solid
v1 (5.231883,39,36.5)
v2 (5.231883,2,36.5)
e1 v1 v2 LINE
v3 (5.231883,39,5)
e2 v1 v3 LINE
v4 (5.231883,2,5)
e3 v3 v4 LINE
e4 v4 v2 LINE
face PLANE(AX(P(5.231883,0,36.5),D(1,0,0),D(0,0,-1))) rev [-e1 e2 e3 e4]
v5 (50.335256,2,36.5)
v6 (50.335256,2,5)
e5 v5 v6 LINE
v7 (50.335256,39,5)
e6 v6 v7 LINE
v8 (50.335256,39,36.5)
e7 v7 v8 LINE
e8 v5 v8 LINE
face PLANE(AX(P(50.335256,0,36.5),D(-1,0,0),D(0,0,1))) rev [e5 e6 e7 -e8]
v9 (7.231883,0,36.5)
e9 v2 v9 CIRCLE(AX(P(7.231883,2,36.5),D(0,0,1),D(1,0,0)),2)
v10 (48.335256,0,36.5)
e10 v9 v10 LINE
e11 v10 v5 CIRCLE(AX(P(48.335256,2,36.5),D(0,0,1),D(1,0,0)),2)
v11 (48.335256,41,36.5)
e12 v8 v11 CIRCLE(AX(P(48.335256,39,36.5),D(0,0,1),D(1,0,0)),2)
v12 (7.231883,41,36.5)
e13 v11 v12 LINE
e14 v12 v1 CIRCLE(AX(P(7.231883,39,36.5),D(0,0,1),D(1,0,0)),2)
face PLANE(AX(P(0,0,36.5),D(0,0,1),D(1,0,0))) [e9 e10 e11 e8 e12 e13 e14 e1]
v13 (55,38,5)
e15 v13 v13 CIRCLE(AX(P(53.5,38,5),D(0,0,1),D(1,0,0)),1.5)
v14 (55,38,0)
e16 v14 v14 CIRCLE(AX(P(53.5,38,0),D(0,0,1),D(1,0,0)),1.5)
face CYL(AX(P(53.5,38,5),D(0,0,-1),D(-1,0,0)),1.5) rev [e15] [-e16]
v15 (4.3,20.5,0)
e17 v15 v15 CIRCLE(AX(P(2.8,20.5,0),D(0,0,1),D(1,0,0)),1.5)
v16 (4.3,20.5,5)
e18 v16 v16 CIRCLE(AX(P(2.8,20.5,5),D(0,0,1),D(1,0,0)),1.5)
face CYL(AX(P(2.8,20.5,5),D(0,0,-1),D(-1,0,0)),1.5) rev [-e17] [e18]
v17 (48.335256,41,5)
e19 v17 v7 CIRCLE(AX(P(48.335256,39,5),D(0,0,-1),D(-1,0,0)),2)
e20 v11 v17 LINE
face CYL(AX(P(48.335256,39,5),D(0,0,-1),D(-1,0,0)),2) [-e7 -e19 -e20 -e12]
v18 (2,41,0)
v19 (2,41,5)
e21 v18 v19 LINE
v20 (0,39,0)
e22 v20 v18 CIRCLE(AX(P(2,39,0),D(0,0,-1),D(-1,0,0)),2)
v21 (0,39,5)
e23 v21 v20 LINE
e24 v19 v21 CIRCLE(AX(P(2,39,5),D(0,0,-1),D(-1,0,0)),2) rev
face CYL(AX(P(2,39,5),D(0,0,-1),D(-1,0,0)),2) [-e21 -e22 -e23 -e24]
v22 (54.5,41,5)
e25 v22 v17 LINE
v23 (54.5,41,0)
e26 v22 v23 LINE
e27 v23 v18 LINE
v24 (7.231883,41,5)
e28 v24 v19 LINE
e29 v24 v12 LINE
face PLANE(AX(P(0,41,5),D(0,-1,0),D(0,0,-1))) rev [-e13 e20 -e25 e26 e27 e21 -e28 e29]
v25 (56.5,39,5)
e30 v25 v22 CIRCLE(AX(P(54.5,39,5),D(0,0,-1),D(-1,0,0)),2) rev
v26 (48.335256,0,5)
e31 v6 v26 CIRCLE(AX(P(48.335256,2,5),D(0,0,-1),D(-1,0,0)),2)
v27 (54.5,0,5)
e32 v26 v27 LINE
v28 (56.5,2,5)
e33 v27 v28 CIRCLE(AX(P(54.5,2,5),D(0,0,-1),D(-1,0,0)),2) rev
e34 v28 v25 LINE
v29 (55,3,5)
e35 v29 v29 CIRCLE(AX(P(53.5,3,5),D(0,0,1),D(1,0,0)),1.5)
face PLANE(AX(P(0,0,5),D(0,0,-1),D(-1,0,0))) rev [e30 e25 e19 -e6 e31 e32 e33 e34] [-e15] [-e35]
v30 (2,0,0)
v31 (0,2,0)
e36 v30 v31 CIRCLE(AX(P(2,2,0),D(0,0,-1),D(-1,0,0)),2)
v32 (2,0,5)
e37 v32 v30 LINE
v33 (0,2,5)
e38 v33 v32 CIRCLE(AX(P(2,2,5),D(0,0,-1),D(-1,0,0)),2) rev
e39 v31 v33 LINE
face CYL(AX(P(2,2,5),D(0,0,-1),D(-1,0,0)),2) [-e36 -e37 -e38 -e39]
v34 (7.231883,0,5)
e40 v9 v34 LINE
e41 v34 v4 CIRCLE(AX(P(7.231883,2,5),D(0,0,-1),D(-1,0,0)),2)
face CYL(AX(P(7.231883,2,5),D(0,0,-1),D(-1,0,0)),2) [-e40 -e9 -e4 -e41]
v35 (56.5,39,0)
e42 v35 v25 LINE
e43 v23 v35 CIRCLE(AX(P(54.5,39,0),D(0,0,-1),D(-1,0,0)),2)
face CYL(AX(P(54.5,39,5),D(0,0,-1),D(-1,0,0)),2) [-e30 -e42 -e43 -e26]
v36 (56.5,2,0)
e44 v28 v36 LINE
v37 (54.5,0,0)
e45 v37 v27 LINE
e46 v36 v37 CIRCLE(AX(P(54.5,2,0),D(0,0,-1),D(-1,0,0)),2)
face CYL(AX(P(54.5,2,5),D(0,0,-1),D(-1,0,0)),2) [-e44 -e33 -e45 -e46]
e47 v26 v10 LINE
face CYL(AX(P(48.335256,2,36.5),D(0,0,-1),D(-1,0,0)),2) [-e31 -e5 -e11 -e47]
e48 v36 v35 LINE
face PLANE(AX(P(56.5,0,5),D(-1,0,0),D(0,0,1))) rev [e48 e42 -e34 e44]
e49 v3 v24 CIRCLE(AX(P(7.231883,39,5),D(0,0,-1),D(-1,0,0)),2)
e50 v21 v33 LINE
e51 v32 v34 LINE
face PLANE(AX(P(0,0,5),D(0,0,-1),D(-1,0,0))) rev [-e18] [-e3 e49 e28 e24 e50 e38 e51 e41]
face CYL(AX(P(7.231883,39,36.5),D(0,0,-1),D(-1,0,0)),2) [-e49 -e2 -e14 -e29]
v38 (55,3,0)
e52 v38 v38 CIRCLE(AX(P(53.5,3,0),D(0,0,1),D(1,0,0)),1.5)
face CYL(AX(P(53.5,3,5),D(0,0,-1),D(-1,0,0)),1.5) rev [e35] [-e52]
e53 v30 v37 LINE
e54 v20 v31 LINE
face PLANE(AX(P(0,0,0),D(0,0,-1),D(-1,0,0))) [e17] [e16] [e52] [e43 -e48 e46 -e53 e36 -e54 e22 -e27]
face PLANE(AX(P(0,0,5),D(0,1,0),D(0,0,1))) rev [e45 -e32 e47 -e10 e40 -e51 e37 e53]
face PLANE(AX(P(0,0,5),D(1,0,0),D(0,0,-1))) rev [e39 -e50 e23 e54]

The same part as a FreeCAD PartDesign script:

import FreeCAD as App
import Part
import Sketcher

V = App.Vector
Q = App.Units.Quantity


def edges_at(feature, points):
    """Names of the edges that pass closest to the given points."""
    edges = feature.Shape.Edges
    near = lambda p: min(range(len(edges)), key=lambda i: edges[i].distToShape(Part.Vertex(*p))[0])
    return sorted({f"Edge{near(p) + 1}" for p in points})

doc = App.newDocument("Part")
body = doc.addObject("PartDesign::Body", "Body")

sketch1 = body.newObject("Sketcher::SketchObject", "Sketch")
sketch1.AttachmentSupport = (doc.getObject("XY_Plane"), [""])
sketch1.MapMode = "FlatFace"
sketch1.addGeometry([
    Part.LineSegment(V(0, 41, 0), V(0, 0, 0)),
    Part.LineSegment(V(0, 0, 0), V(56.5, 0, 0)),
    Part.LineSegment(V(56.5, 0, 0), V(56.5, 41, 0)),
    Part.LineSegment(V(56.5, 41, 0), V(0, 41, 0)),
    Part.Circle(V(53.5, 3, 0), V(0, 0, 1), 1.5),
    Part.Circle(V(2.8, 20.5, 0), V(0, 0, 1), 1.5),
    Part.Circle(V(53.5, 38, 0), V(0, 0, 1), 1.5),
], False)
sketch1.addConstraint([
    Sketcher.Constraint("Coincident", 0, 2, 1, 1),
    Sketcher.Constraint("Coincident", 1, 2, 2, 1),
    Sketcher.Constraint("Coincident", 2, 2, 3, 1),
    Sketcher.Constraint("Coincident", 3, 2, 0, 1),
    Sketcher.Constraint("Vertical", 0),
    Sketcher.Constraint("Horizontal", 1),
    Sketcher.Constraint("Vertical", 2),
    Sketcher.Constraint("Horizontal", 3),
    Sketcher.Constraint("Coincident", 0, 2, -1, 1),
    Sketcher.Constraint("Equal", 4, 5),
    Sketcher.Constraint("Equal", 5, 6),
    Sketcher.Constraint("Vertical", 4, 3, 6, 3),
    Sketcher.Constraint("Diameter", 4, Q("3 mm")),
    Sketcher.Constraint("DistanceY", 0, 2, 0, 1, Q("41 mm")),
    Sketcher.Constraint("DistanceX", 1, 1, 1, 2, Q("56.5 mm")),
    Sketcher.Constraint("DistanceY", -1, 1, 4, 3, Q("3 mm")),
    Sketcher.Constraint("DistanceY", -1, 1, 6, 3, Q("38 mm")),
    Sketcher.Constraint("DistanceX", 4, 3, 1, 2, Q("3 mm")),
    Sketcher.Constraint("DistanceX", -1, 1, 5, 3, Q("2.8 mm")),
    Sketcher.Constraint("DistanceY", -1, 1, 5, 3, Q("20.5 mm")),
])
pad1 = body.newObject("PartDesign::Pad", "Pad")
pad1.Profile = sketch1
pad1.Length = 5
doc.recompute()

fillet = body.newObject("PartDesign::Fillet", "Fillet")
fillet.Base = (pad1, edges_at(pad1, [
    (0, 41, 2.5),
    (56.5, 41, 2.5),
    (56.5, 0, 2.5),
    (0, 0, 2.5),
]))
fillet.Radius = 2

sketch2 = body.newObject("Sketcher::SketchObject", "Sketch001")
sketch2.AttachmentSupport = (doc.getObject("XY_Plane"), [""])
sketch2.MapMode = "FlatFace"
sketch2.AttachmentOffset = App.Placement(V(0, 0, 5), App.Rotation())
sketch2.addGeometry([
    Part.LineSegment(V(5, 41, 0), V(5, 0, 0)),
    Part.LineSegment(V(5, 0, 0), V(50, 0, 0)),
    Part.LineSegment(V(50, 0, 0), V(50, 41, 0)),
    Part.LineSegment(V(50, 41, 0), V(5, 41, 0)),
], False)
sketch2.addConstraint([
    Sketcher.Constraint("Coincident", 0, 2, 1, 1),
    Sketcher.Constraint("Coincident", 1, 2, 2, 1),
    Sketcher.Constraint("Coincident", 2, 2, 3, 1),
    Sketcher.Constraint("Coincident", 3, 2, 0, 1),
    Sketcher.Constraint("Vertical", 0),
    Sketcher.Constraint("Horizontal", 1),
    Sketcher.Constraint("Vertical", 2),
    Sketcher.Constraint("Horizontal", 3),
    Sketcher.Constraint("PointOnObject", 0, 2, -1),
    Sketcher.Constraint("DistanceY", 0, 2, 0, 1, Q("41 mm")),
    Sketcher.Constraint("DistanceX", 1, 1, 1, 2, Q("45.103373 mm")),
    Sketcher.Constraint("DistanceX", -1, 1, 0, 2, Q("5.231883 mm")),
])
pad2 = body.newObject("PartDesign::Pad", "Pad001")
pad2.Profile = sketch2
pad2.Length = 31.5
doc.recompute()

fillet2 = body.newObject("PartDesign::Fillet", "Fillet001")
fillet2.Base = (pad2, edges_at(pad2, [
    (50.335, 0, 20.75),
    (50.335, 41, 20.75),
    (5.232, 41, 20.75),
    (5.232, 0, 20.75),
]))
fillet2.Radius = 2

doc.recompute()
